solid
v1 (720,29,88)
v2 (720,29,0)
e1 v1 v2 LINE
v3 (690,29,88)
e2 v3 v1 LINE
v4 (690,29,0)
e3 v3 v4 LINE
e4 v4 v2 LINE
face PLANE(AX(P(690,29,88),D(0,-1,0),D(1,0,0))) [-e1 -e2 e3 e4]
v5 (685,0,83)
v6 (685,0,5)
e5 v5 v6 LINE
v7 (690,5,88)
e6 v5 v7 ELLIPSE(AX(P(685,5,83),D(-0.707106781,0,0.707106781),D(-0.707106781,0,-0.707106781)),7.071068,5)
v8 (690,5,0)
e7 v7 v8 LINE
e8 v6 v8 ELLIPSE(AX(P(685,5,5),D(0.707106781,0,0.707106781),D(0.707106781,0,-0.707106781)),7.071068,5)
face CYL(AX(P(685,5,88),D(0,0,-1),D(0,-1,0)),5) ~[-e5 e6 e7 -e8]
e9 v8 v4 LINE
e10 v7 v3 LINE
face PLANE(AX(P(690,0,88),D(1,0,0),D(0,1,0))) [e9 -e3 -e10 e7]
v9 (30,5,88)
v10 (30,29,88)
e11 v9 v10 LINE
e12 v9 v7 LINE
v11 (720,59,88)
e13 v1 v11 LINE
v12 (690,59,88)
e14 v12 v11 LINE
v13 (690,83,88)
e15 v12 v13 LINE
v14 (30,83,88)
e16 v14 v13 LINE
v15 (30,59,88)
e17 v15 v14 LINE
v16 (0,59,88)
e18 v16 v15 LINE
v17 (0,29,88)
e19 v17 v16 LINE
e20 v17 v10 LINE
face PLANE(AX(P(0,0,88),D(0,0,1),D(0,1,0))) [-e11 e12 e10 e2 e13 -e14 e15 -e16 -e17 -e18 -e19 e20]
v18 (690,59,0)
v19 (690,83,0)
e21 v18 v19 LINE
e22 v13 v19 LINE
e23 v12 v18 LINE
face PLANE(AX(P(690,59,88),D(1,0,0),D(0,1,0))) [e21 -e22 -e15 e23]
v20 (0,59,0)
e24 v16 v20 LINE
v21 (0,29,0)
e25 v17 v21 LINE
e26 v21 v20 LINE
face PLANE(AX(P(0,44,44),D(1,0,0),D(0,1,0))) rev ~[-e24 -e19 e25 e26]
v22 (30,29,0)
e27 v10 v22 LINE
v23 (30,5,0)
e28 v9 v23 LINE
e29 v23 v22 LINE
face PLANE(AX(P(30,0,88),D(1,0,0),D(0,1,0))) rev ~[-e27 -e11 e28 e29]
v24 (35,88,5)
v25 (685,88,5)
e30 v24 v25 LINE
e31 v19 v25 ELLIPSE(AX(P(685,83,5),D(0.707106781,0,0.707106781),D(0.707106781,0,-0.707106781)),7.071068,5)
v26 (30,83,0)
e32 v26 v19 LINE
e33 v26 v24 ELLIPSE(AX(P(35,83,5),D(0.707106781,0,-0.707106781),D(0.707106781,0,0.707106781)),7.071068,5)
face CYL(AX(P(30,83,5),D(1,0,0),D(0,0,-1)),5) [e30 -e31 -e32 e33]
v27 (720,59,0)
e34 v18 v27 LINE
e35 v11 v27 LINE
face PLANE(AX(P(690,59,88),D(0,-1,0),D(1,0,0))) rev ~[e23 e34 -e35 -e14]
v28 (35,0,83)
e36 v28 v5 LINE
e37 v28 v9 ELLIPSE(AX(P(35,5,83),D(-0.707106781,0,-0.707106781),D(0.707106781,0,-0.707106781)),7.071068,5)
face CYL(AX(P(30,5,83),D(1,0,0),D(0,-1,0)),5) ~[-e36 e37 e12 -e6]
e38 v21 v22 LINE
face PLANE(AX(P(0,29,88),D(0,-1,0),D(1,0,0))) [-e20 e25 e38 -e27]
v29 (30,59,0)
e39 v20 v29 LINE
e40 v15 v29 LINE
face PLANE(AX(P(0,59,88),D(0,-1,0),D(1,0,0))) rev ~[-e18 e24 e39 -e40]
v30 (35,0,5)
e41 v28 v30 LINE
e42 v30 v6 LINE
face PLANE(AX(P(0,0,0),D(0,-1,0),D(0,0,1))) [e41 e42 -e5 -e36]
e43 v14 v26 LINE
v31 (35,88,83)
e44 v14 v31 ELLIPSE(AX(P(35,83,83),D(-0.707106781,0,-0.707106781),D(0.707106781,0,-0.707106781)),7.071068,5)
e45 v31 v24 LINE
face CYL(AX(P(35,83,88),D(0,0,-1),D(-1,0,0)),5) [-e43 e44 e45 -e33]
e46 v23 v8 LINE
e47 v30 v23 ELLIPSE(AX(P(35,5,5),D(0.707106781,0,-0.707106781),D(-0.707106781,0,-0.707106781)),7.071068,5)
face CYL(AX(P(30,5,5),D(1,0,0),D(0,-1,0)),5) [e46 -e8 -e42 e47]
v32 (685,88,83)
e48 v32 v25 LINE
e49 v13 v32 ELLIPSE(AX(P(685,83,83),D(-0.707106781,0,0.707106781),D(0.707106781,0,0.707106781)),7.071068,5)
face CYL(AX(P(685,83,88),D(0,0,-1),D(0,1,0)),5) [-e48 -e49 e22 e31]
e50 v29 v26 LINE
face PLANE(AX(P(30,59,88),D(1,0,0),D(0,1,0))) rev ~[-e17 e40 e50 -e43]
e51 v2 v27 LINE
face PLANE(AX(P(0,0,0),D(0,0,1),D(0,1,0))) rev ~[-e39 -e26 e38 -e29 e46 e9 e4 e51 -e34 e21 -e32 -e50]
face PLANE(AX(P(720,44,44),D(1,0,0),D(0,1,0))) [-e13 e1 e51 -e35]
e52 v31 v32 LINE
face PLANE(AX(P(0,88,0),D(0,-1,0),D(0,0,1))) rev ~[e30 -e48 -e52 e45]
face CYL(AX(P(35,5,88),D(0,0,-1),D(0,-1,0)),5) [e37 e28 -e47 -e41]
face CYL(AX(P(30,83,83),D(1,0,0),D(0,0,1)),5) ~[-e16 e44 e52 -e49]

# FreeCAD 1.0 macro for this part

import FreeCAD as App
import Part
import Sketcher
from FreeCAD import Vector


def edges_at(feature, points):
    """Names of the edges that pass closest to the given points."""
    edges = feature.Shape.Edges
    near = lambda p: min(range(len(edges)), key=lambda i: edges[i].distToShape(Part.Vertex(*p))[0])
    return sorted({f"Edge{near(p) + 1}" for p in points})

doc = App.newDocument("Part")
body = doc.addObject("PartDesign::Body", "Body")

# Sketch on YZ plane
sketch1 = body.newObject("Sketcher::SketchObject", "Sketch")
sketch1.AttachmentSupport = (doc.getObject("YZ_Plane"), [""])
sketch1.MapMode = "FlatFace"
sketch1.addGeometry([
    Part.LineSegment(Vector(0, 88, 0), Vector(0, 0, 0)),
    Part.LineSegment(Vector(0, 0, 0), Vector(88, 0, 0)),
    Part.LineSegment(Vector(88, 0, 0), Vector(88, 88, 0)),
    Part.LineSegment(Vector(88, 88, 0), Vector(0, 88, 0)),
], False)
sketch1.addConstraint([
    Sketcher.Constraint("Coincident", 0, 2, 1, 1),
    Sketcher.Constraint("Coincident", 1, 2, 2, 1),
    Sketcher.Constraint("Coincident", 2, 2, 3, 1),
    Sketcher.Constraint("Coincident", 3, 2, 0, 1),
    Sketcher.Constraint("Vertical", 0),
    Sketcher.Constraint("Horizontal", 1),
    Sketcher.Constraint("Vertical", 2),
    Sketcher.Constraint("Horizontal", 3),
    Sketcher.Constraint("Coincident", 0, 2, -1, 1),
    Sketcher.Constraint("Equal", 3, 0),
    Sketcher.Constraint("DistanceX", 1, 1, 1, 2, 88.0),
])
pad1 = body.newObject("PartDesign::Pad", "Pad")
pad1.Profile = sketch1
pad1.Length = 720

# Sketch on XY plane
sketch2 = body.newObject("Sketcher::SketchObject", "Sketch001")
sketch2.AttachmentSupport = (doc.getObject("XY_Plane"), [""])
sketch2.MapMode = "FlatFace"
sketch2.AttachmentOffset = App.Placement(Vector(0, 0, 88), App.Rotation())
sketch2.addGeometry([
    Part.LineSegment(Vector(690, 29, 0), Vector(690, 0, 0)),  # 0
    Part.LineSegment(Vector(690, 0, 0), Vector(720, 0, 0)),  # 1
    Part.LineSegment(Vector(720, 0, 0), Vector(720, 29, 0)),  # 2
    Part.LineSegment(Vector(720, 29, 0), Vector(690, 29, 0)),  # 3
    Part.LineSegment(Vector(690, 88, 0), Vector(690, 59, 0)),  # 4
    Part.LineSegment(Vector(690, 59, 0), Vector(720, 59, 0)),  # 5
    Part.LineSegment(Vector(720, 59, 0), Vector(720, 88, 0)),  # 6
    Part.LineSegment(Vector(720, 88, 0), Vector(690, 88, 0)),  # 7
], False)
sketch2.addConstraint([
    Sketcher.Constraint("Coincident", 0, 2, 1, 1),
    Sketcher.Constraint("Coincident", 1, 2, 2, 1),
    Sketcher.Constraint("Coincident", 2, 2, 3, 1),
    Sketcher.Constraint("Coincident", 3, 2, 0, 1),
    Sketcher.Constraint("Coincident", 4, 2, 5, 1),
    Sketcher.Constraint("Coincident", 5, 2, 6, 1),
    Sketcher.Constraint("Coincident", 6, 2, 7, 1),
    Sketcher.Constraint("Coincident", 7, 2, 4, 1),
    Sketcher.Constraint("Vertical", 0),
    Sketcher.Constraint("Horizontal", 1),
    Sketcher.Constraint("Vertical", 2),
    Sketcher.Constraint("Horizontal", 3),
    Sketcher.Constraint("Vertical", 4),
    Sketcher.Constraint("Horizontal", 5),
    Sketcher.Constraint("Vertical", 6),
    Sketcher.Constraint("Horizontal", 7),
    Sketcher.Constraint("PointOnObject", 0, 2, -1),
    Sketcher.Constraint("Vertical", 3, 2, 4, 2),
    Sketcher.Constraint("Vertical", 2, 2, 5, 2),
    Sketcher.Constraint("Equal", 2, 4),
    Sketcher.Constraint("DistanceX", 1, 1, 1, 2, 30.0),
    Sketcher.Constraint("DistanceY", 0, 2, 0, 1, 29.0),
    Sketcher.Constraint("DistanceX", -1, 1, 0, 2, 690.0),
    Sketcher.Constraint("DistanceY", -1, 1, 4, 2, 59.0),
])
pocket1 = body.newObject("PartDesign::Pocket", "Pocket")
pocket1.Profile = sketch2
pocket1.Type = "ThroughAll"

# Sketch on XY plane
sketch3 = body.newObject("Sketcher::SketchObject", "Sketch002")
sketch3.AttachmentSupport = (doc.getObject("XY_Plane"), [""])
sketch3.MapMode = "FlatFace"
sketch3.AttachmentOffset = App.Placement(Vector(0, 0, 88), App.Rotation())
sketch3.addGeometry([
    Part.LineSegment(Vector(0, 88, 0), Vector(0, 59, 0)),  # 0
    Part.LineSegment(Vector(0, 59, 0), Vector(30, 59, 0)),  # 1
    Part.LineSegment(Vector(30, 59, 0), Vector(30, 88, 0)),  # 2
    Part.LineSegment(Vector(30, 88, 0), Vector(0, 88, 0)),  # 3
    Part.LineSegment(Vector(0, 29, 0), Vector(0, 0, 0)),  # 4
    Part.LineSegment(Vector(0, 0, 0), Vector(30, 0, 0)),  # 5
    Part.LineSegment(Vector(30, 0, 0), Vector(30, 29, 0)),  # 6
    Part.LineSegment(Vector(30, 29, 0), Vector(0, 29, 0)),  # 7
], False)
sketch3.addConstraint([
    Sketcher.Constraint("Coincident", 0, 2, 1, 1),
    Sketcher.Constraint("Coincident", 1, 2, 2, 1),
    Sketcher.Constraint("Coincident", 2, 2, 3, 1),
    Sketcher.Constraint("Coincident", 3, 2, 0, 1),
    Sketcher.Constraint("Coincident", 4, 2, 5, 1),
    Sketcher.Constraint("Coincident", 5, 2, 6, 1),
    Sketcher.Constraint("Coincident", 6, 2, 7, 1),
    Sketcher.Constraint("Coincident", 7, 2, 4, 1),
    Sketcher.Constraint("Vertical", 0),
    Sketcher.Constraint("Horizontal", 1),
    Sketcher.Constraint("Vertical", 2),
    Sketcher.Constraint("Horizontal", 3),
    Sketcher.Constraint("Vertical", 4),
    Sketcher.Constraint("Horizontal", 5),
    Sketcher.Constraint("Vertical", 6),
    Sketcher.Constraint("Horizontal", 7),
    Sketcher.Constraint("Coincident", 4, 2, -1, 1),
    Sketcher.Constraint("PointOnObject", 0, 2, -2),
    Sketcher.Constraint("Vertical", 2, 2, 5, 2),
    Sketcher.Constraint("Equal", 2, 4),
    Sketcher.Constraint("DistanceX", 1, 1, 1, 2, 30.0),
    Sketcher.Constraint("DistanceY", 0, 2, 0, 1, 29.0),
    Sketcher.Constraint("DistanceY", -1, 1, 0, 2, 59.0),
])
pocket2 = body.newObject("PartDesign::Pocket", "Pocket001")
pocket2.Profile = sketch3
pocket2.Type = "ThroughAll"
doc.recompute()

fillet = body.newObject("PartDesign::Fillet", "Fillet")
fillet.Base = (pocket2, edges_at(pocket2, [
    (30, 0, 44),
    (360, 0, 0),
    (690, 0, 44),
    (360, 0, 88),
    (360, 88, 88),
    (360, 88, 0),
    (690, 88, 44),
    (30, 88, 44),
]))
fillet.Radius = 5

doc.recompute()
